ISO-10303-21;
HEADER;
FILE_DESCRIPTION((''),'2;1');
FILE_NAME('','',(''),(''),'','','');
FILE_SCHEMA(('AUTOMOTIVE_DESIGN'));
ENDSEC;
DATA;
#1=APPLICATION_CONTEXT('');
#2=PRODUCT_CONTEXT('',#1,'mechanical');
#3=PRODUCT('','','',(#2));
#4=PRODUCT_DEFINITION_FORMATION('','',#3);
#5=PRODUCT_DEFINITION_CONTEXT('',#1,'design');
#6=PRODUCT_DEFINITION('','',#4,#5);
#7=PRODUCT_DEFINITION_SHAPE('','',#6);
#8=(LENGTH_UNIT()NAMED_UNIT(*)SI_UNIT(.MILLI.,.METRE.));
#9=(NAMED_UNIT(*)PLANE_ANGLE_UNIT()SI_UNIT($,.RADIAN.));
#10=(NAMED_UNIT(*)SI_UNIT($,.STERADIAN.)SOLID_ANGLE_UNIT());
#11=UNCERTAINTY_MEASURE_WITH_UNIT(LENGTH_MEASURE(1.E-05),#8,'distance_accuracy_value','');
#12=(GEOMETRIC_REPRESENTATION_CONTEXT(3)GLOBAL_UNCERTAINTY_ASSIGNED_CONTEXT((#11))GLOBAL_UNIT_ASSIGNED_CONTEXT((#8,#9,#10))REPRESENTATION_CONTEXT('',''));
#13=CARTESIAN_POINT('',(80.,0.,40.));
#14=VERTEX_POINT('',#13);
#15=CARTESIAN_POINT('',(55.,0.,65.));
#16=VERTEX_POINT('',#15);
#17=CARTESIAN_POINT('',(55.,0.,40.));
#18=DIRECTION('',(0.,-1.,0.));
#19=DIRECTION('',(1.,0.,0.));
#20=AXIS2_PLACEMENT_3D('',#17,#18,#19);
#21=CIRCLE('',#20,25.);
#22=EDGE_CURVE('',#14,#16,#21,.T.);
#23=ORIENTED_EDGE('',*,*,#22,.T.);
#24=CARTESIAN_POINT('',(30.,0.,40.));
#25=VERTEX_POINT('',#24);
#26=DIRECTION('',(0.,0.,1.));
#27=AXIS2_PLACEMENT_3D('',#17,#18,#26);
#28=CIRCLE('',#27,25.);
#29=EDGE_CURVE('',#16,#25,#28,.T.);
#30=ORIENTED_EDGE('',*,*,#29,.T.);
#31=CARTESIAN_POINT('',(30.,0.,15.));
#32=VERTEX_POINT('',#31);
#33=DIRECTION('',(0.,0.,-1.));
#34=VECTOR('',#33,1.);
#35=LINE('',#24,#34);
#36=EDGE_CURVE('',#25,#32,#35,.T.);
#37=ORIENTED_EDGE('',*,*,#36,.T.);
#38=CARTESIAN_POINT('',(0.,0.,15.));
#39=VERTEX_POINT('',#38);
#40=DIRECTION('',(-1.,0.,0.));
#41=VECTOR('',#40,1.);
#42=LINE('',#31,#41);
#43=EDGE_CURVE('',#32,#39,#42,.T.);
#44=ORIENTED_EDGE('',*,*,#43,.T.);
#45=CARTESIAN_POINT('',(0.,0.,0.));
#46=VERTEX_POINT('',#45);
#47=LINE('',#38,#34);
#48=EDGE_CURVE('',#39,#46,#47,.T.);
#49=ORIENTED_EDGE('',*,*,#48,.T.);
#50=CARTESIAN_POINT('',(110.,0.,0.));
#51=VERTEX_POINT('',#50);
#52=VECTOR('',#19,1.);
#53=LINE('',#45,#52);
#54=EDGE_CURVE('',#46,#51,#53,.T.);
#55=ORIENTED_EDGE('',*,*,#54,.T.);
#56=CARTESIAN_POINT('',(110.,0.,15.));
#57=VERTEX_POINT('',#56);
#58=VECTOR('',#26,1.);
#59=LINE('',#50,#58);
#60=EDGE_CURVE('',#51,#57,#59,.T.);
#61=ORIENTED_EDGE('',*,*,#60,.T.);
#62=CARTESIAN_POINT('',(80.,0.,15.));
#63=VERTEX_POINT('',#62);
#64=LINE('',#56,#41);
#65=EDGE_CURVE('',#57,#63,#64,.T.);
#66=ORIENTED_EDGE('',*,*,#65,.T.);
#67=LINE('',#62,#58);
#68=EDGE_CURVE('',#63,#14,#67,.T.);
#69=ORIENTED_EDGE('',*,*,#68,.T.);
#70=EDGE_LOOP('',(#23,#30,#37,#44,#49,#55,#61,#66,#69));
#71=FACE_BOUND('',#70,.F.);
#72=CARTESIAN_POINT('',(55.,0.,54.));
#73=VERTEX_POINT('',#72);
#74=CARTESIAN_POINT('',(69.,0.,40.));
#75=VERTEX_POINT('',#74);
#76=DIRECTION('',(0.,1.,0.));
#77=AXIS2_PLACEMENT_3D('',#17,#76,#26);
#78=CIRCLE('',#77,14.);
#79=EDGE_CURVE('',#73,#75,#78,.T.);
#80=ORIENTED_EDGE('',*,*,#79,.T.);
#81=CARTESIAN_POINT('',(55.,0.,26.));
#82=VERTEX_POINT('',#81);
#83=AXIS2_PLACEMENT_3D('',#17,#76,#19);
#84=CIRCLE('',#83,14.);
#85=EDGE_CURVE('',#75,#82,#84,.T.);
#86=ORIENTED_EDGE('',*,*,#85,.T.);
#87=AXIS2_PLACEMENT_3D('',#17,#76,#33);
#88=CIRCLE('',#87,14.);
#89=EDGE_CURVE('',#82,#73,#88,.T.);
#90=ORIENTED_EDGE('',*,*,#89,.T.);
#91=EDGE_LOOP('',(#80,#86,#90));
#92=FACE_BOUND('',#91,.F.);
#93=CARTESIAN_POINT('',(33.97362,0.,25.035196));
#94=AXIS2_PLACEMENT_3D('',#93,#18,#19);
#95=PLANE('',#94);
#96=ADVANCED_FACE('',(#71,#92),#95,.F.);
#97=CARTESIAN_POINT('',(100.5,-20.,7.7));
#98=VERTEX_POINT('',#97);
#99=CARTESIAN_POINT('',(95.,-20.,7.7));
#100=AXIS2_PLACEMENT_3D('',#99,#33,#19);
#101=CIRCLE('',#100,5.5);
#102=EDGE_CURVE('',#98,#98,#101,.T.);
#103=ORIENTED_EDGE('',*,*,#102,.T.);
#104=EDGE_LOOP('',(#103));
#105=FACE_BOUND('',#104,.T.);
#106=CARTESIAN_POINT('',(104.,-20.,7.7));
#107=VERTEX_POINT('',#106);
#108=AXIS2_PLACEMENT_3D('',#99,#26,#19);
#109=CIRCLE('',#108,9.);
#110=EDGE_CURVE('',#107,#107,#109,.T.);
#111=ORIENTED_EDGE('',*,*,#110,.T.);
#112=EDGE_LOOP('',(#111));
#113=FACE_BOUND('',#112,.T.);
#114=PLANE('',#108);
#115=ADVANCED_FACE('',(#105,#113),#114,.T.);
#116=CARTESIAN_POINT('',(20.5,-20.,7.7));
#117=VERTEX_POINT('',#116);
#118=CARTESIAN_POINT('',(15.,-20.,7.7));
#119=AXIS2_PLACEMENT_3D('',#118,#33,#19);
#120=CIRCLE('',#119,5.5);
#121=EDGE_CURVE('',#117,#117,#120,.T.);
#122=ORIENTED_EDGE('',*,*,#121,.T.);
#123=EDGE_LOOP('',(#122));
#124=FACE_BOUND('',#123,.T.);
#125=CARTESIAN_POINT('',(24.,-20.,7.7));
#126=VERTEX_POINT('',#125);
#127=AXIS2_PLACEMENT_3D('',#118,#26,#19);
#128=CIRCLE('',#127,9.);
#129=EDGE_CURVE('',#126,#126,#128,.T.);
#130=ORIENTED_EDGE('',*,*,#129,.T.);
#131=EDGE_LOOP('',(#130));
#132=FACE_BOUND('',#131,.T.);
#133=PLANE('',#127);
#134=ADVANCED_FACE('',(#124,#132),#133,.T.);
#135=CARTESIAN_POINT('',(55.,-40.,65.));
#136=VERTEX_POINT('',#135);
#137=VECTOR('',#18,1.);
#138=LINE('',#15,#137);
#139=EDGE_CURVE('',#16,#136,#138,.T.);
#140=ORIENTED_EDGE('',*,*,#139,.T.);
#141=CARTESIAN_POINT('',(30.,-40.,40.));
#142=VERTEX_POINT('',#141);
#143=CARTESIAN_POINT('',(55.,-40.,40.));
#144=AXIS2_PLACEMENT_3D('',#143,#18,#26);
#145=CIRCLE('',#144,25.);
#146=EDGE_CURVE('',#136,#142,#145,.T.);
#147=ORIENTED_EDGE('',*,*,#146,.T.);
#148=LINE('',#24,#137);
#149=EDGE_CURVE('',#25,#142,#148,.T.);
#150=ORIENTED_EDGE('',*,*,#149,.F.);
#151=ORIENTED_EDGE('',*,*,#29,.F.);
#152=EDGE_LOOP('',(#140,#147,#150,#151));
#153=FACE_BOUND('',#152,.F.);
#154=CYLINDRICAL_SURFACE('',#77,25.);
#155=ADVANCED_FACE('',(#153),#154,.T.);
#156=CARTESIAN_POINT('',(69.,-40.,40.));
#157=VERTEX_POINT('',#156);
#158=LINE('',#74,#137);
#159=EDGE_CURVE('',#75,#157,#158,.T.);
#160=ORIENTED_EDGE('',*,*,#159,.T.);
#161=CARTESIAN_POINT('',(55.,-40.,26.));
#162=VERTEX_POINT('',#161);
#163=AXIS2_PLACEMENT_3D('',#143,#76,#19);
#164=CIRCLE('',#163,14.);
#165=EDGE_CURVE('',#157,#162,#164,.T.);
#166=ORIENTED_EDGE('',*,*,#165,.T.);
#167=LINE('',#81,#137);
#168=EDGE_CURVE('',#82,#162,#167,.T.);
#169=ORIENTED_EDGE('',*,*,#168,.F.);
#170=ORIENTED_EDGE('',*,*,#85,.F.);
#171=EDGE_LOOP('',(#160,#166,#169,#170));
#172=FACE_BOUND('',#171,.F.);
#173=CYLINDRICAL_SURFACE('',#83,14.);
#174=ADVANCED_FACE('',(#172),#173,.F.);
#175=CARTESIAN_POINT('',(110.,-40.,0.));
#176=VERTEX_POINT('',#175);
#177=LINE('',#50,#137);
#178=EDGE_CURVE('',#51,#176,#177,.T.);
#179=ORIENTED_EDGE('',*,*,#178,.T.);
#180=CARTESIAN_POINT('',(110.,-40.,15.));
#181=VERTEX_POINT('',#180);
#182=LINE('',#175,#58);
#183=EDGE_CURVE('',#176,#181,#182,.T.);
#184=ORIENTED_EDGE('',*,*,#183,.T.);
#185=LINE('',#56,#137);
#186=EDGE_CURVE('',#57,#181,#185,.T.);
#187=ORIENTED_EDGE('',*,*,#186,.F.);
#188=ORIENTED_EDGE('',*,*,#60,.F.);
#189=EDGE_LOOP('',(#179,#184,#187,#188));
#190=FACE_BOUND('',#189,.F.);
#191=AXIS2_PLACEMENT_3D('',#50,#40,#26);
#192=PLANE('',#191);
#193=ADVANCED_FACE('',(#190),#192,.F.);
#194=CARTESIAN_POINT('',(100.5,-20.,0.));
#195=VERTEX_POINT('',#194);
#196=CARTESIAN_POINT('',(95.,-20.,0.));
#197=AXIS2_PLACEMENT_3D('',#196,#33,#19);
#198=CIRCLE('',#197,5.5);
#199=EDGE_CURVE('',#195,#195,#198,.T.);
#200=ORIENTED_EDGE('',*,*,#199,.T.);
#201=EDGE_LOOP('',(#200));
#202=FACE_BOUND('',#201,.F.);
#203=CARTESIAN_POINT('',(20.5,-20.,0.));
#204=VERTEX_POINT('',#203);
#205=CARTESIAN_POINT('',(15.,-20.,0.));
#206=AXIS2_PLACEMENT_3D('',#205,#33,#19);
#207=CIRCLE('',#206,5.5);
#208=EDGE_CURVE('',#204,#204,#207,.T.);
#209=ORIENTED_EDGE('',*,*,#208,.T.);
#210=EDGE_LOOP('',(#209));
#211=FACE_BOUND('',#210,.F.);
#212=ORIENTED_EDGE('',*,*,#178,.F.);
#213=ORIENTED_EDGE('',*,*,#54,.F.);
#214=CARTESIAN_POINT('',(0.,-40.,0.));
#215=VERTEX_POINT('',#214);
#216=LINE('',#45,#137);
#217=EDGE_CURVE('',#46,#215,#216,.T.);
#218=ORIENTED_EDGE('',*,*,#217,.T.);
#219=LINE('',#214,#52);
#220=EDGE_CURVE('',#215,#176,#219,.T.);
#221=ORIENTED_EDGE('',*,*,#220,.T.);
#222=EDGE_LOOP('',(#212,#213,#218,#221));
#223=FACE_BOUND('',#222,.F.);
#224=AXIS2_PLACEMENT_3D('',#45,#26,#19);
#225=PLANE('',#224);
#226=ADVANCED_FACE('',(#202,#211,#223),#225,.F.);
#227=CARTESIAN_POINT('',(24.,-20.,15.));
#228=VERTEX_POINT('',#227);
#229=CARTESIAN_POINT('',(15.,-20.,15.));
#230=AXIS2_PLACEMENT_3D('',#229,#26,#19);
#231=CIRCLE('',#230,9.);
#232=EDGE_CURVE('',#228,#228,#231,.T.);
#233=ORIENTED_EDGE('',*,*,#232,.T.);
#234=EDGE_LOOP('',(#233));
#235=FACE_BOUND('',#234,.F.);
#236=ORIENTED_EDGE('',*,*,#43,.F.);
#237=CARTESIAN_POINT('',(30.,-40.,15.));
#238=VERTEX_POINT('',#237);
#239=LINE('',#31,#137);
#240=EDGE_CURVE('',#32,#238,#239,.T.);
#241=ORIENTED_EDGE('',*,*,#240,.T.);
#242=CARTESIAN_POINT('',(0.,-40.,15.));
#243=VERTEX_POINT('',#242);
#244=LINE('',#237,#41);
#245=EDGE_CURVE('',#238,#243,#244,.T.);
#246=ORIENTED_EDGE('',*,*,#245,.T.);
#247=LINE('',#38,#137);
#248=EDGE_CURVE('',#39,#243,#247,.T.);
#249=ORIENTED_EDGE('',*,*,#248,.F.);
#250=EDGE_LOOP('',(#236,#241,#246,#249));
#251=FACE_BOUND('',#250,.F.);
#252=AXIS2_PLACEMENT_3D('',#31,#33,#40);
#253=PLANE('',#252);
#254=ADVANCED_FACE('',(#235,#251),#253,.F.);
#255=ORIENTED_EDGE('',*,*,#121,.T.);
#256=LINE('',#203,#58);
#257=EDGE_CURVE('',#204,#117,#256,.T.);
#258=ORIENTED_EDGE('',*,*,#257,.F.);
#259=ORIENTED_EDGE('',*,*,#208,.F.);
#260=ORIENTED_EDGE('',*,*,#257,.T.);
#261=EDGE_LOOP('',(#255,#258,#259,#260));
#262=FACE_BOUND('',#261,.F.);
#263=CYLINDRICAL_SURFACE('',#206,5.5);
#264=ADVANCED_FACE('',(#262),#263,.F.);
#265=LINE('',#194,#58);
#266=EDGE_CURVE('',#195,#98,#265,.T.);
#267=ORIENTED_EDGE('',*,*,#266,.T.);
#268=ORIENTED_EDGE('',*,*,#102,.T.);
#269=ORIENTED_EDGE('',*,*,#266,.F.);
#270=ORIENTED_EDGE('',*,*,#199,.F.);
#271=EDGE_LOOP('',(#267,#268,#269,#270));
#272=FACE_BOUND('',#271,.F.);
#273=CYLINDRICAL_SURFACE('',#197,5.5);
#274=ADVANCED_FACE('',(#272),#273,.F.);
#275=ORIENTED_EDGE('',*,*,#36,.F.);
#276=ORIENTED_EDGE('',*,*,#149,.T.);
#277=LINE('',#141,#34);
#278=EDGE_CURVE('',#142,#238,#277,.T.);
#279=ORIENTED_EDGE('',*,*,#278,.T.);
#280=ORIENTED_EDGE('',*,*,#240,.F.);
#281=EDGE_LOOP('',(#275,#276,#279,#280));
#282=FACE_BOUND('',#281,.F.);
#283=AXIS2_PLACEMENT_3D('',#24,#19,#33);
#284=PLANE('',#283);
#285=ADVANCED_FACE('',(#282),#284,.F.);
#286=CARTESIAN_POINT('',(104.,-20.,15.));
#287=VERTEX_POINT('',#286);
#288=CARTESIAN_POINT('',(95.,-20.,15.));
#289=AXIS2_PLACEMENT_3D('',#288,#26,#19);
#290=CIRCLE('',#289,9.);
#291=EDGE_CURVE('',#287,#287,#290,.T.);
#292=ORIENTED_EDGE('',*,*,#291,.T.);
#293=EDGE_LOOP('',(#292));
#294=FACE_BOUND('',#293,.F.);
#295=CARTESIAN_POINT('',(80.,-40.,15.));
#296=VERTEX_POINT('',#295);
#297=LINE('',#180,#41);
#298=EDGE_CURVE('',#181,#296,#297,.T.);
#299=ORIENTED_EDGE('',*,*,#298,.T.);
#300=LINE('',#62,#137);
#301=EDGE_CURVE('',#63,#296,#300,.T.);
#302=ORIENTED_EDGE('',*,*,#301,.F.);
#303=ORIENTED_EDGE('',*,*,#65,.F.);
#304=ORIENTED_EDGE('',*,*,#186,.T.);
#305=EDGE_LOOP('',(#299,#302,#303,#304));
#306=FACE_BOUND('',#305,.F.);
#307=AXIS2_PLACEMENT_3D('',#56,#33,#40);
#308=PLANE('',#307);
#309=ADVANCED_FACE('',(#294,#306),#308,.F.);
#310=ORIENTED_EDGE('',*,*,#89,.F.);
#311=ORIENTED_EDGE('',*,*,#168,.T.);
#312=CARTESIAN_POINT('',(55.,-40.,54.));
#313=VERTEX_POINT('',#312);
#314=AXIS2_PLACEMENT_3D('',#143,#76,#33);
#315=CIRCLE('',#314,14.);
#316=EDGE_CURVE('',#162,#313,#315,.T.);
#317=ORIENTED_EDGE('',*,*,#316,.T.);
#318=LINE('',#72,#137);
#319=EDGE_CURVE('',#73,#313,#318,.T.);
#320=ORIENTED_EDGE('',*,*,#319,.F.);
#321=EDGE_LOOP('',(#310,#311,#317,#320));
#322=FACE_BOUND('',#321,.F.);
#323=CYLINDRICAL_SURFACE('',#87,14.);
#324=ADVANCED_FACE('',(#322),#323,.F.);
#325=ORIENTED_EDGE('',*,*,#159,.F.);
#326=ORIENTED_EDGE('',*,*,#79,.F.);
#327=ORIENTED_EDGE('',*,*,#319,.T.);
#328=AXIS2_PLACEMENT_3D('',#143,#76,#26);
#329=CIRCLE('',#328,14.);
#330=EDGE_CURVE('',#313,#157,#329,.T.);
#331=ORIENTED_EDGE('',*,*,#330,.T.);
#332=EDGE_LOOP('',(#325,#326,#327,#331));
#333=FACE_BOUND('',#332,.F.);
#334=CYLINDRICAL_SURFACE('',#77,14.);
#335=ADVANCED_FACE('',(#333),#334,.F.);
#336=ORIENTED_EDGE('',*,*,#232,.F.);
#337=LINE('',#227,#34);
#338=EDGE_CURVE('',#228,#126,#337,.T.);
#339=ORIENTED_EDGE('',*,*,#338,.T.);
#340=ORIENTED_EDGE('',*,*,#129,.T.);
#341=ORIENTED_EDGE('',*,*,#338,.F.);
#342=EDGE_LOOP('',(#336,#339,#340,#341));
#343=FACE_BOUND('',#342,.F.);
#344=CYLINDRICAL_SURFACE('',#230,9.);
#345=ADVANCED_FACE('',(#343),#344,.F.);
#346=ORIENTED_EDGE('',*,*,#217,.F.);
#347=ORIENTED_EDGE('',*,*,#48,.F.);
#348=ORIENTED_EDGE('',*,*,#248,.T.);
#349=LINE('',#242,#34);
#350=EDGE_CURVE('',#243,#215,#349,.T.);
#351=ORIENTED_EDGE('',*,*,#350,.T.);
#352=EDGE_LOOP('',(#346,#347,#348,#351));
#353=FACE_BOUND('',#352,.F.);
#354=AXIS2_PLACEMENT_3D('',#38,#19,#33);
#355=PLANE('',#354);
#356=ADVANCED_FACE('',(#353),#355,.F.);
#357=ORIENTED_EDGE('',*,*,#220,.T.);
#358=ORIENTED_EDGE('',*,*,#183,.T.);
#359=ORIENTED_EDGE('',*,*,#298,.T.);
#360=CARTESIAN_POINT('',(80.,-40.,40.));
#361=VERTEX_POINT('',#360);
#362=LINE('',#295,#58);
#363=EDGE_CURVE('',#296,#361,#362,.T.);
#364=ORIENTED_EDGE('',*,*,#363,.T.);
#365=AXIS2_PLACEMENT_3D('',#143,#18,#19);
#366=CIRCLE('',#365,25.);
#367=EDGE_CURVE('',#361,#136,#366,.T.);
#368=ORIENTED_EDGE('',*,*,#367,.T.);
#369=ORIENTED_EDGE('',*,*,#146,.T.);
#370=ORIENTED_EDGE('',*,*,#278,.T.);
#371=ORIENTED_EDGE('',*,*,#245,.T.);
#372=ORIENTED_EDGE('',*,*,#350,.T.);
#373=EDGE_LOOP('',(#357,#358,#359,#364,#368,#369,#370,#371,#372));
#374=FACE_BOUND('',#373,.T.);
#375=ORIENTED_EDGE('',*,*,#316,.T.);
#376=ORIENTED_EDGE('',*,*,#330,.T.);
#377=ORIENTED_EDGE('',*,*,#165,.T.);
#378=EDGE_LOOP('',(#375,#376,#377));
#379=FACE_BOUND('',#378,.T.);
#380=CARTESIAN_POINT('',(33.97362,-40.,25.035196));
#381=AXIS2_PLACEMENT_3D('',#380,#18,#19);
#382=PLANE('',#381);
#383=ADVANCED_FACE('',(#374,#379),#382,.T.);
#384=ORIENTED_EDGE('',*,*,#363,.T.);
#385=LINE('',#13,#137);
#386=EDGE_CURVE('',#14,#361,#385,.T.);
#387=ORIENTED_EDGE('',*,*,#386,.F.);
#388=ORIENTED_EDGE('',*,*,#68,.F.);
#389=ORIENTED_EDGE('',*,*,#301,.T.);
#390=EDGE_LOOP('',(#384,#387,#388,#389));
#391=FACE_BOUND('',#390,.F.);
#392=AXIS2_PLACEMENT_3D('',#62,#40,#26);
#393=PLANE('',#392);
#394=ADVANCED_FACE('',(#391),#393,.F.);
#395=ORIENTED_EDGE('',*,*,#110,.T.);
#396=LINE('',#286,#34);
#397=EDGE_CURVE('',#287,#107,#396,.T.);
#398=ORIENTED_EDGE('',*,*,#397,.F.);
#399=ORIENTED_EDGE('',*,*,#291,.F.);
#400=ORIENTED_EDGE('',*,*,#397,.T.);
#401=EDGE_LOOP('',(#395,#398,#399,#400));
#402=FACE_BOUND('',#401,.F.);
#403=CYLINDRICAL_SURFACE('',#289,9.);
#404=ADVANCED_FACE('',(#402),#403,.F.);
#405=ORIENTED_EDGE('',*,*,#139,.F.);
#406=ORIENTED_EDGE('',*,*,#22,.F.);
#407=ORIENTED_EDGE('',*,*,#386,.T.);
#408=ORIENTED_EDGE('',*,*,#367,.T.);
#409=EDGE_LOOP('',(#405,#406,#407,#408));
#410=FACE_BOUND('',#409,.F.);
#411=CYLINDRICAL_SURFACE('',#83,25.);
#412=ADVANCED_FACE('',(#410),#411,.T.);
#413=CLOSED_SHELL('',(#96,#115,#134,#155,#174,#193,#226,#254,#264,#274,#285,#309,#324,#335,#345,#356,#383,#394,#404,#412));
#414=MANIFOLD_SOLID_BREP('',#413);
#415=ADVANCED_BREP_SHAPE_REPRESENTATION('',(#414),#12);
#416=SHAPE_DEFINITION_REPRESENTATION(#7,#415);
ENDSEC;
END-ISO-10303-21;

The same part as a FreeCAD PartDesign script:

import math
import FreeCAD as App
import Part
import Sketcher

doc = App.newDocument("Part")
body = doc.addObject("PartDesign::Body", "Body")

sketch1 = doc.addObject("Sketcher::SketchObject", "Sketch")
body.addObject(sketch1)
sketch1.AttachmentSupport = (doc.XZ_Plane, [""])
sketch1.MapMode = "FlatFace"
sketch1.addGeometry(Part.LineSegment(App.Vector(0, 15, 0), App.Vector(0, 0, 0)), False)
sketch1.addGeometry(Part.LineSegment(App.Vector(0, 0, 0), App.Vector(110, 0, 0)), False)
sketch1.addGeometry(Part.LineSegment(App.Vector(110, 0, 0), App.Vector(110, 15, 0)), False)
sketch1.addGeometry(Part.LineSegment(App.Vector(110, 15, 0), App.Vector(80, 15, 0)), False)
sketch1.addGeometry(Part.LineSegment(App.Vector(80, 15, 0), App.Vector(80, 40, 0)), False)
sketch1.addGeometry(Part.ArcOfCircle(Part.Circle(App.Vector(55, 40, 0), App.Vector(0, 0, 1), 25), math.radians(0), math.radians(90)), False)
sketch1.addGeometry(Part.ArcOfCircle(Part.Circle(App.Vector(55, 40, 0), App.Vector(0, 0, 1), 25), math.radians(90), math.radians(180)), False)
sketch1.addGeometry(Part.LineSegment(App.Vector(30, 40, 0), App.Vector(30, 15, 0)), False)
sketch1.addGeometry(Part.LineSegment(App.Vector(30, 15, 0), App.Vector(0, 15, 0)), False)
sketch1.addGeometry(Part.ArcOfCircle(Part.Circle(App.Vector(55, 40, 0), App.Vector(0, 0, 1), 14), math.radians(90), math.radians(270)), False)
sketch1.addGeometry(Part.ArcOfCircle(Part.Circle(App.Vector(55, 40, 0), App.Vector(0, 0, 1), 14), math.radians(0), math.radians(90)), False)
sketch1.addGeometry(Part.ArcOfCircle(Part.Circle(App.Vector(55, 40, 0), App.Vector(0, 0, 1), 14), math.radians(-90), math.radians(0)), False)
sketch1.addConstraint(Sketcher.Constraint("Coincident", 0, 2, 1, 1))
sketch1.addConstraint(Sketcher.Constraint("Coincident", 1, 2, 2, 1))
sketch1.addConstraint(Sketcher.Constraint("Coincident", 2, 2, 3, 1))
sketch1.addConstraint(Sketcher.Constraint("Coincident", 3, 2, 4, 1))
sketch1.addConstraint(Sketcher.Constraint("Tangent", 4, 2, 5, 1))
sketch1.addConstraint(Sketcher.Constraint("Tangent", 5, 2, 6, 1))
sketch1.addConstraint(Sketcher.Constraint("Tangent", 6, 2, 7, 1))
sketch1.addConstraint(Sketcher.Constraint("Coincident", 7, 2, 8, 1))
sketch1.addConstraint(Sketcher.Constraint("Coincident", 8, 2, 0, 1))
sketch1.addConstraint(Sketcher.Constraint("Tangent", 9, 1, 10, 2))
sketch1.addConstraint(Sketcher.Constraint("Tangent", 10, 1, 11, 2))
sketch1.addConstraint(Sketcher.Constraint("Tangent", 11, 1, 9, 2))
sketch1.addConstraint(Sketcher.Constraint("Vertical", 0))
sketch1.addConstraint(Sketcher.Constraint("Horizontal", 1))
sketch1.addConstraint(Sketcher.Constraint("Vertical", 2))
sketch1.addConstraint(Sketcher.Constraint("Horizontal", 3))
sketch1.addConstraint(Sketcher.Constraint("Vertical", 4))
sketch1.addConstraint(Sketcher.Constraint("Vertical", 7))
sketch1.addConstraint(Sketcher.Constraint("Horizontal", 8))
sketch1.addConstraint(Sketcher.Constraint("Coincident", 0, 2, -1, 1))
sketch1.addConstraint(Sketcher.Constraint("Coincident", 9, 3, 5, 3))
sketch1.addConstraint(Sketcher.Constraint("Equal", 5, 6))
sketch1.addConstraint(Sketcher.Constraint("Horizontal", 3, 2, 7, 2))
sketch1.addConstraint(Sketcher.Constraint("Horizontal", 6, 2, 10, 1))
sketch1.addConstraint(Sketcher.Constraint("Vertical", 11, 3, 5, 2))
sketch1.addConstraint(Sketcher.Constraint("Vertical", 5, 2, 9, 1))
sketch1.addConstraint(Sketcher.Constraint("Vertical", 9, 1, 11, 1))
sketch1.addConstraint(Sketcher.Constraint("Equal", 3, 8))
sketch1.addConstraint(Sketcher.Constraint("Radius", 5, 25.0))
sketch1.addConstraint(Sketcher.Constraint("Radius", 9, 14.0))
sketch1.addConstraint(Sketcher.Constraint("DistanceX", 1, 1, 1, 2, 110.0))
sketch1.addConstraint(Sketcher.Constraint("DistanceY", 0, 2, 0, 1, 15.0))
sketch1.addConstraint(Sketcher.Constraint("DistanceY", 4, 1, 4, 2, 25.0))
pad1 = doc.addObject("PartDesign::Pad", "Pad")
body.addObject(pad1)
pad1.Profile = sketch1
pad1.Length = 40

sketch2 = doc.addObject("Sketcher::SketchObject", "Sketch001")
body.addObject(sketch2)
sketch2.AttachmentSupport = (doc.XY_Plane, [""])
sketch2.MapMode = "FlatFace"
sketch2.AttachmentOffset = App.Placement(App.Vector(0, 0, 15), App.Rotation())
sketch2.addGeometry(Part.Circle(App.Vector(15, -20, 0), App.Vector(0, 0, 1), 9), False)
sketch2.addConstraint(Sketcher.Constraint("Diameter", 0, 18.0))
sketch2.addConstraint(Sketcher.Constraint("DistanceX", -1, 1, 0, 3, 15.0))
sketch2.addConstraint(Sketcher.Constraint("DistanceY", 0, 3, -1, 1, 20.0))
pocket1 = doc.addObject("PartDesign::Pocket", "Pocket")
body.addObject(pocket1)
pocket1.Profile = sketch2
pocket1.Length = 7.3

sketch3 = doc.addObject("Sketcher::SketchObject", "Sketch002")
body.addObject(sketch3)
sketch3.AttachmentSupport = (doc.XY_Plane, [""])
sketch3.MapMode = "FlatFace"
sketch3.addGeometry(Part.Circle(App.Vector(15, -20, 0), App.Vector(0, 0, 1), 6), False)
sketch3.addGeometry(Part.Circle(App.Vector(95, -20, 0), App.Vector(0, 0, 1), 6), False)
sketch3.addConstraint(Sketcher.Constraint("Equal", 0, 1))
sketch3.addConstraint(Sketcher.Constraint("Horizontal", 0, 3, 1, 3))
sketch3.addConstraint(Sketcher.Constraint("Diameter", 0, 11.0))
sketch3.addConstraint(Sketcher.Constraint("DistanceX", -1, 1, 0, 3, 15.0))
sketch3.addConstraint(Sketcher.Constraint("DistanceY", 0, 3, -1, 1, 20.0))
sketch3.addConstraint(Sketcher.Constraint("DistanceX", -1, 1, 1, 3, 95.0))
pocket2 = doc.addObject("PartDesign::Pocket", "Pocket001")
body.addObject(pocket2)
pocket2.Profile = sketch3
pocket2.Length = 7.7
pocket2.Reversed = True

sketch4 = doc.addObject("Sketcher::SketchObject", "Sketch003")
body.addObject(sketch4)
sketch4.AttachmentSupport = (doc.XY_Plane, [""])
sketch4.MapMode = "FlatFace"
sketch4.AttachmentOffset = App.Placement(App.Vector(0, 0, 15), App.Rotation())
sketch4.addGeometry(Part.Circle(App.Vector(95, -20, 0), App.Vector(0, 0, 1), 9), False)
sketch4.addConstraint(Sketcher.Constraint("Diameter", 0, 18.0))
sketch4.addConstraint(Sketcher.Constraint("DistanceX", -1, 1, 0, 3, 95.0))
sketch4.addConstraint(Sketcher.Constraint("DistanceY", 0, 3, -1, 1, 20.0))
pocket3 = doc.addObject("PartDesign::Pocket", "Pocket002")
body.addObject(pocket3)
pocket3.Profile = sketch4
pocket3.Length = 7.3

doc.recompute()
